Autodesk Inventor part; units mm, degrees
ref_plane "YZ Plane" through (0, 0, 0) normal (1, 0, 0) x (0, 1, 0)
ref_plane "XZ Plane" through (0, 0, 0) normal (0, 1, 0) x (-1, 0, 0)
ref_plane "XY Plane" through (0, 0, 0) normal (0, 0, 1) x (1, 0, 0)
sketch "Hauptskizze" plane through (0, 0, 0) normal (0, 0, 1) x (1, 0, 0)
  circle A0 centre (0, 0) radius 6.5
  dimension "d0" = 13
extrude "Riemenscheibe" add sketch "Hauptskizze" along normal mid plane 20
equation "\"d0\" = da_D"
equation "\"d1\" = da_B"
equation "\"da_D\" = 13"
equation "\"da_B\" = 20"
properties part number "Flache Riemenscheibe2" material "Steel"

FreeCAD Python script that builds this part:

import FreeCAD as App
import Part
import Sketcher
Q = App.Units.Quantity

doc = App.newDocument("Part")
body = doc.addObject("PartDesign::Body", "Body")

# Sketch on XY plane
sketch1 = body.newObject("Sketcher::SketchObject", "Sketch")
sketch1.AttachmentSupport = (doc.getObject("XY_Plane"), [""])
sketch1.MapMode = "FlatFace"
sketch1.addGeometry(Part.Circle(App.Vector(0, 0, 0), App.Vector(0, 0, 1), 6), False)
sketch1.addConstraint([
    Sketcher.Constraint("Coincident", 0, 3, -1, 1),
    Sketcher.Constraint("Diameter", 0, Q("13 mm")),
])
pad1 = body.newObject("PartDesign::Pad", "Pad")
pad1.Profile = sketch1
pad1.Length = 20
pad1.Midplane = True

doc.recompute()
